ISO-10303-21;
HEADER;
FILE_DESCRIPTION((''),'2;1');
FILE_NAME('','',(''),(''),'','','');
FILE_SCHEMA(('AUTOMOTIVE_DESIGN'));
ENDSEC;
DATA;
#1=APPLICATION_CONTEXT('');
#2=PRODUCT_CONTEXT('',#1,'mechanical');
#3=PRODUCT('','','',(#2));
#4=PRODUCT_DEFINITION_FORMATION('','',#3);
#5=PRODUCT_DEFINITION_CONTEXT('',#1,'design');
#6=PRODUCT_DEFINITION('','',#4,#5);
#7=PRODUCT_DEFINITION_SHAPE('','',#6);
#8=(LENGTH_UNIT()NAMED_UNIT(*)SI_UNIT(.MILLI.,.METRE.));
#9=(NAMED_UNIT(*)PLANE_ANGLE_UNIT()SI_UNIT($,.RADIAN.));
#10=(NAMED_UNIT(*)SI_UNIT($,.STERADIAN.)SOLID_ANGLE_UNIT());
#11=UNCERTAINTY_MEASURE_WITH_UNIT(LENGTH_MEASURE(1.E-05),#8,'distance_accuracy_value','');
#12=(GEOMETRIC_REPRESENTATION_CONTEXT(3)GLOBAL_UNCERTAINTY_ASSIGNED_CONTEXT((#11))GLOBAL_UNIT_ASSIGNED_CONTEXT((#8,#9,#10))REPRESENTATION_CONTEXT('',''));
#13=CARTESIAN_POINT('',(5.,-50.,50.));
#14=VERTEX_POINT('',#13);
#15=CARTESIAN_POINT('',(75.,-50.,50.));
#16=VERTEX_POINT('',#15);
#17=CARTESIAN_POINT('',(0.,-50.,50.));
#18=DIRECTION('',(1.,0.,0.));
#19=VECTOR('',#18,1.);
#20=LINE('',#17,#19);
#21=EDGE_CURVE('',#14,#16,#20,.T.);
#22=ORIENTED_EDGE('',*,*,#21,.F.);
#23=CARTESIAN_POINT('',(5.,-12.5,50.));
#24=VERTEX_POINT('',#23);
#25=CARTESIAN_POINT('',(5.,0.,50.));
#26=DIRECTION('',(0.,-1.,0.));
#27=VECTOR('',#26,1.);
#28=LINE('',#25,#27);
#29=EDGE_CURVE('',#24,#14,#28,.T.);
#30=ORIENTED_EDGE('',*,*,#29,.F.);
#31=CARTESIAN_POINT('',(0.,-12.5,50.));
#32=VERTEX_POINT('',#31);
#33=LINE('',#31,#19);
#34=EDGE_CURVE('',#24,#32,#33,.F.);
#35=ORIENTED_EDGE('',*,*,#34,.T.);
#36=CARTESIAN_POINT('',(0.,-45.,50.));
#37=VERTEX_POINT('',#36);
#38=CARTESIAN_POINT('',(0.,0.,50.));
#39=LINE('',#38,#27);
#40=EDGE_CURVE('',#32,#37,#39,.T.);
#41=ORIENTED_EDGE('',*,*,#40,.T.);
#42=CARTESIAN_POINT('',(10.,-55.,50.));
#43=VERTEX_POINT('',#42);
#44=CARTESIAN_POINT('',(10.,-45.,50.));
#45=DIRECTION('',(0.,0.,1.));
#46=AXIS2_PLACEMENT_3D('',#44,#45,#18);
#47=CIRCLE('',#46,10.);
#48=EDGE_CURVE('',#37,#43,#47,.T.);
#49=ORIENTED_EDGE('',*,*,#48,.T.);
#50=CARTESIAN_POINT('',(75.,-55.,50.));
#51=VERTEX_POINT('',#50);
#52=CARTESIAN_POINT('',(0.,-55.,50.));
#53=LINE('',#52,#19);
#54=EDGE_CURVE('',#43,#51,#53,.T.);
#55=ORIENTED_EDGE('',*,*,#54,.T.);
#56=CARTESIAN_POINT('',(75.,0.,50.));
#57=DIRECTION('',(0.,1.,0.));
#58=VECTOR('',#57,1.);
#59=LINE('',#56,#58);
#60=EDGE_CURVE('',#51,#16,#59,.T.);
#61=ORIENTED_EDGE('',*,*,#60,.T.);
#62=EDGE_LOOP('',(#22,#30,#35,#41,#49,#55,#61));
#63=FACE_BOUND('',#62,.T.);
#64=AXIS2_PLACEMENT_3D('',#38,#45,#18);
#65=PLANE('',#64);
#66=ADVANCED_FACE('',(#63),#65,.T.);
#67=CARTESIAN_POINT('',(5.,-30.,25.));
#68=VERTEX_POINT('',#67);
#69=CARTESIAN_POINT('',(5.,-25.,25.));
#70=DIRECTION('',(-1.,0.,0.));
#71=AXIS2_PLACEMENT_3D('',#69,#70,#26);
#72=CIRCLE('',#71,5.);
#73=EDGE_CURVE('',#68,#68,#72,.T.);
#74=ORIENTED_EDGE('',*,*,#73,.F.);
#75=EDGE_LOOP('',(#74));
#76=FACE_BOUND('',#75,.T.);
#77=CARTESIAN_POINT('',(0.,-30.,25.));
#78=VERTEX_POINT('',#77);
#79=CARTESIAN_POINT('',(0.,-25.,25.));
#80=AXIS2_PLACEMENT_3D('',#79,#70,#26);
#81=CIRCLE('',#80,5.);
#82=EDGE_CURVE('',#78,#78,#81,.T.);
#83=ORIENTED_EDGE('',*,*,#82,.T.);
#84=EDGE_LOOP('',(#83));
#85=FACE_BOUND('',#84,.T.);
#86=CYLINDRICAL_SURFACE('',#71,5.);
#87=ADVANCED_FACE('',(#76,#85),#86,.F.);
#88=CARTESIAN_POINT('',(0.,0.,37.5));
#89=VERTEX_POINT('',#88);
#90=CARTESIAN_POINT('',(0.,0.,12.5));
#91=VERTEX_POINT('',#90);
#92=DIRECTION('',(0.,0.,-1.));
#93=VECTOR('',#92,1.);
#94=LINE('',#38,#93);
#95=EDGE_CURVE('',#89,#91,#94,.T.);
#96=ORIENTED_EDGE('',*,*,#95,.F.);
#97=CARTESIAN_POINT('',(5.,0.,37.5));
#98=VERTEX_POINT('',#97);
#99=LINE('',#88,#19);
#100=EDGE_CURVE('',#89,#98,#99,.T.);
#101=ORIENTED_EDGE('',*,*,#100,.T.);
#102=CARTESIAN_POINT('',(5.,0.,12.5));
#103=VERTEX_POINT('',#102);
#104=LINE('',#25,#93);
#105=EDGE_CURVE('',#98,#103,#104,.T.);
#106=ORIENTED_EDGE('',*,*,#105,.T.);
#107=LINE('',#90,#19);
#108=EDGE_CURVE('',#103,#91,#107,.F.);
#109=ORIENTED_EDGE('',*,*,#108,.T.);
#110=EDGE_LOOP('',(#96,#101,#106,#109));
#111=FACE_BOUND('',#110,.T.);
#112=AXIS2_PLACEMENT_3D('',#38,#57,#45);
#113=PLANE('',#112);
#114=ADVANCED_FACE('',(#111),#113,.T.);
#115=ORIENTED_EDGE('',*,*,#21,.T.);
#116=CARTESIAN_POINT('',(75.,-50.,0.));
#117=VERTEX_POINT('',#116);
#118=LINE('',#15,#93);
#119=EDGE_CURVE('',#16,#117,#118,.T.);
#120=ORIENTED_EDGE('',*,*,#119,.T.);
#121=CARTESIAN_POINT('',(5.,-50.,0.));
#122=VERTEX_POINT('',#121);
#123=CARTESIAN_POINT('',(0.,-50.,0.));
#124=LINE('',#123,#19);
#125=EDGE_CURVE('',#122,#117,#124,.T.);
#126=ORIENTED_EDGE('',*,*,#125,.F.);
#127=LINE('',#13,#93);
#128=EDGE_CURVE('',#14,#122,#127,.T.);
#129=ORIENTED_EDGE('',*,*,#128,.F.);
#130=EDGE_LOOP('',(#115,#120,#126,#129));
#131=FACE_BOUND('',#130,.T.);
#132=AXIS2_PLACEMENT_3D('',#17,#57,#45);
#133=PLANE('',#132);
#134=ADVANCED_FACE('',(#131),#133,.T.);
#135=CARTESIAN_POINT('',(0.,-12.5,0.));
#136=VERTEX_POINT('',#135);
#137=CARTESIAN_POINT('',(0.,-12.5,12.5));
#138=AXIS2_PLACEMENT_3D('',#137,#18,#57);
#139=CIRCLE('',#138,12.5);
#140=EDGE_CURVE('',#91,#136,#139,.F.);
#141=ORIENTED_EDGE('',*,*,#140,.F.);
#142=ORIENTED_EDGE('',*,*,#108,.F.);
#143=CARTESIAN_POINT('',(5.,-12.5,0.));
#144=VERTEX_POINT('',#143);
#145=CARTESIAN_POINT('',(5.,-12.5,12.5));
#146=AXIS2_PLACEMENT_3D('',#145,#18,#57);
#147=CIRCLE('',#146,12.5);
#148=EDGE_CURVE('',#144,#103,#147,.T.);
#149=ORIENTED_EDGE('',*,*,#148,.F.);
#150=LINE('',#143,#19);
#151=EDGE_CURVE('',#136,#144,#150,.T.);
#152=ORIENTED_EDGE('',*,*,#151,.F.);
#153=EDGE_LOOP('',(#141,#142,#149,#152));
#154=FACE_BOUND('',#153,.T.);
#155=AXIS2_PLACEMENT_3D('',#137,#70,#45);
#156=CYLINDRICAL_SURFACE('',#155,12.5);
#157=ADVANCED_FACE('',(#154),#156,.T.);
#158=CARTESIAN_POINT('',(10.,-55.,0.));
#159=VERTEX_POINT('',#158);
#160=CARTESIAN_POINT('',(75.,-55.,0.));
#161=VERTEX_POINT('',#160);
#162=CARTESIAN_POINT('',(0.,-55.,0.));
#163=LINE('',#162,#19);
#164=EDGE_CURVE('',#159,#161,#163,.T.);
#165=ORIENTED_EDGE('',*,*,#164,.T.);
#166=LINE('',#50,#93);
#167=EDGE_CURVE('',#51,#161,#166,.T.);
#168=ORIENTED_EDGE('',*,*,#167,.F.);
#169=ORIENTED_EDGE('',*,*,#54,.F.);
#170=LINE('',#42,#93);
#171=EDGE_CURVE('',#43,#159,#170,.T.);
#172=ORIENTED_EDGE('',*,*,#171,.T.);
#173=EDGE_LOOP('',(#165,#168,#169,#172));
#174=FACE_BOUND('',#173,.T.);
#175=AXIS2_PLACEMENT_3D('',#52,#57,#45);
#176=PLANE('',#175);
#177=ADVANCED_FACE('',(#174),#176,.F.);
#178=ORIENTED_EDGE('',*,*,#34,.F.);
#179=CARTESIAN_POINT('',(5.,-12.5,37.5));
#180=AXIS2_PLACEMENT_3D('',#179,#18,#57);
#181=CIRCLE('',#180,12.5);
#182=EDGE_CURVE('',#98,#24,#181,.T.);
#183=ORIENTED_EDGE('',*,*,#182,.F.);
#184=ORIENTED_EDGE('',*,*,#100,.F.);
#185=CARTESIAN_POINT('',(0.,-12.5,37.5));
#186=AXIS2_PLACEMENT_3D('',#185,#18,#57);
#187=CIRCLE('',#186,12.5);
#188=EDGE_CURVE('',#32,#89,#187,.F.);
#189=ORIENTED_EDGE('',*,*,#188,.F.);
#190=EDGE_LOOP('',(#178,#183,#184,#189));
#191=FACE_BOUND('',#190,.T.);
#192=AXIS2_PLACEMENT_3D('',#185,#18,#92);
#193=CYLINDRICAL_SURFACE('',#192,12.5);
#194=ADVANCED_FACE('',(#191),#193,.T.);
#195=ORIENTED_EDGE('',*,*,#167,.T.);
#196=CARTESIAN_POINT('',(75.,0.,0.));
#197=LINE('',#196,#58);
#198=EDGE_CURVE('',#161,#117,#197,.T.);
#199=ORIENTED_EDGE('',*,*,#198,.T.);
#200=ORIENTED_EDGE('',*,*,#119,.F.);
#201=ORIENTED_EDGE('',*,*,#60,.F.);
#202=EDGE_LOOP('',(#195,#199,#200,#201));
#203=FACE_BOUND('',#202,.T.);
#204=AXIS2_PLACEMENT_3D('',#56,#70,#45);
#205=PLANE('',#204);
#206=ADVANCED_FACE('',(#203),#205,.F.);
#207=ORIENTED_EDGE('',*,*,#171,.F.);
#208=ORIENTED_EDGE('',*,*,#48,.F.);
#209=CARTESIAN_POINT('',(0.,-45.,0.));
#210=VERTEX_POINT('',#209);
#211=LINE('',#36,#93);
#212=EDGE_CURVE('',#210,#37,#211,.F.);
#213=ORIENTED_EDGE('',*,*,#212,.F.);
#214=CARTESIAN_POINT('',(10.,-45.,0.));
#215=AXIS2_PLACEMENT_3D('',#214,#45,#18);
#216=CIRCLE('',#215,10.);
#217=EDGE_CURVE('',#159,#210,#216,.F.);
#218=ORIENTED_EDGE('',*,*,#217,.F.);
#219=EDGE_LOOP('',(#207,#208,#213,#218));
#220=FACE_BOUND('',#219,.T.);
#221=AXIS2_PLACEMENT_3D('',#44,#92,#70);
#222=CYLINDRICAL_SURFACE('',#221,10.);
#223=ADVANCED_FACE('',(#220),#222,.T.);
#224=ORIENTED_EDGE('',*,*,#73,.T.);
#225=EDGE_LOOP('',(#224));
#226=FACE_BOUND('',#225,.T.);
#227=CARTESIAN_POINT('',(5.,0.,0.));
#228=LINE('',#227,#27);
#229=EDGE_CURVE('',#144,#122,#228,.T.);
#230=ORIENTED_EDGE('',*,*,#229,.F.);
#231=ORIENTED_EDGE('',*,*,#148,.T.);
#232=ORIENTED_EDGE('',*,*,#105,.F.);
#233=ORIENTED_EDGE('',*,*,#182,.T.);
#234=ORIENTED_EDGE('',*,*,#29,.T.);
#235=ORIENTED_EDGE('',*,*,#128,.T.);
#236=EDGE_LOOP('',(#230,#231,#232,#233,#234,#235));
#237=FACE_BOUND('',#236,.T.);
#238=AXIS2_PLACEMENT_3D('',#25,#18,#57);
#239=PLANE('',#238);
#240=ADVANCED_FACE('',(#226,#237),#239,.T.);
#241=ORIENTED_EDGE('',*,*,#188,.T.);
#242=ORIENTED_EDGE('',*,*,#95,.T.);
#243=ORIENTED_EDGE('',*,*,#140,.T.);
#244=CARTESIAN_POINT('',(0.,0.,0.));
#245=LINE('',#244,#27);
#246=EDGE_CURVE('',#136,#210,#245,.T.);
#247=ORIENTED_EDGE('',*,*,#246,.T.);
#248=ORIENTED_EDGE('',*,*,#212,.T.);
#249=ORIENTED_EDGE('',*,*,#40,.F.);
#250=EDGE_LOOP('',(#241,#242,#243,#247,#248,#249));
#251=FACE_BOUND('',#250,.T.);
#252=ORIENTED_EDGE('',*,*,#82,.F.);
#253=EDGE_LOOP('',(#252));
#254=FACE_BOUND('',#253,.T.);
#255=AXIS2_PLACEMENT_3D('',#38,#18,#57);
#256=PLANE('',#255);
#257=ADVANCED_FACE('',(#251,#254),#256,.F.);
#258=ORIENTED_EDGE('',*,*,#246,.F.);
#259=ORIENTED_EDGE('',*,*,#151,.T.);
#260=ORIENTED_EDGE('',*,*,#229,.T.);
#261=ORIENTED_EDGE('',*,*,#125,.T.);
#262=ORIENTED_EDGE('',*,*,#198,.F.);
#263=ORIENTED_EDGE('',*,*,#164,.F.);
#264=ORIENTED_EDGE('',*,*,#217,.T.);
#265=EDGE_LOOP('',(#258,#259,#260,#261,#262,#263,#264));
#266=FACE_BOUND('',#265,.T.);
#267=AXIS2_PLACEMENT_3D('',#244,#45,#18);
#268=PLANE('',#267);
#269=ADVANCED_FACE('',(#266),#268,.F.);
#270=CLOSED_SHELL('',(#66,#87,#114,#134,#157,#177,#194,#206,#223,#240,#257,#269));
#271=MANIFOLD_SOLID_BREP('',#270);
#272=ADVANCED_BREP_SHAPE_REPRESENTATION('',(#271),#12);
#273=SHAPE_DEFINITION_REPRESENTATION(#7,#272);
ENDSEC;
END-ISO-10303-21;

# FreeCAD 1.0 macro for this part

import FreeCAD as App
import Part
import Sketcher
from FreeCAD import Vector


def edges_at(feature, points):
    """Names of the edges that pass closest to the given points."""
    edges = feature.Shape.Edges
    near = lambda p: min(range(len(edges)), key=lambda i: edges[i].distToShape(Part.Vertex(*p))[0])
    return sorted({f"Edge{near(p) + 1}" for p in points})


def add_polygon(sketch, points):
    """Adds a closed chain of lines whose ends are joined by coincident constraints."""
    first, n = sketch.GeometryCount, len(points)
    for a, b in zip(points, points[1:] + points[:1]):
        sketch.addGeometry(Part.LineSegment(App.Vector(*a, 0), App.Vector(*b, 0)), False)
    for i in range(n):
        sketch.addConstraint(Sketcher.Constraint("Coincident", first + i, 2, first + (i + 1) % n, 1))

doc = App.newDocument("Part")
body = doc.addObject("PartDesign::Body", "Body")

# Sketch on XY plane
sketch1 = body.newObject("Sketcher::SketchObject", "Sketch")
sketch1.AttachmentSupport = (doc.getObject("XY_Plane"), [""])
sketch1.MapMode = "FlatFace"
add_polygon(sketch1, [(0, 0), (0, -55), (75, -55), (75, -50), (5, -50), (5, 0)])  # lines 0-5
sketch1.addConstraint([
    Sketcher.Constraint("Vertical", 0),
    Sketcher.Constraint("Horizontal", 1),
    Sketcher.Constraint("Vertical", 2),
    Sketcher.Constraint("Horizontal", 3),
    Sketcher.Constraint("Vertical", 4),
    Sketcher.Constraint("Horizontal", 5),
    Sketcher.Constraint("Coincident", 5, 2, -1, 1),
    Sketcher.Constraint("Equal", 5, 2),
    Sketcher.Constraint("DistanceX", 1, 1, 1, 2, 75.0),
    Sketcher.Constraint("DistanceX", 3, 2, 3, 1, 70.0),
    Sketcher.Constraint("DistanceY", 0, 2, 0, 1, 55.0),
])
pad1 = body.newObject("PartDesign::Pad", "Pad")
pad1.Profile = sketch1
pad1.Length = 50

# Sketch on YZ plane
sketch2 = body.newObject("Sketcher::SketchObject", "Sketch001")
sketch2.AttachmentSupport = (doc.getObject("YZ_Plane"), [""])
sketch2.MapMode = "FlatFace"
sketch2.addGeometry(Part.Circle(Vector(-25, 25, 0), Vector(0, 0, 1), 5), False)
sketch2.addConstraint([
    Sketcher.Constraint("Diameter", 0, 10.0),
    Sketcher.Constraint("DistanceX", 0, 3, -1, 1, 25.0),
    Sketcher.Constraint("DistanceY", -1, 1, 0, 3, 25.0),
])
pocket1 = body.newObject("PartDesign::Pocket", "Pocket")
pocket1.Profile = sketch2
pocket1.Length = 5
pocket1.Reversed = True
doc.recompute()

fillet = body.newObject("PartDesign::Fillet", "Fillet")
fillet.Base = (pocket1, edges_at(pocket1, [(0, -55, 25)]))
fillet.Radius = 10
doc.recompute()

fillet2 = body.newObject("PartDesign::Fillet", "Fillet001")
fillet2.Base = (fillet, edges_at(fillet, [(2.5, 0, 50), (2.5, 0, 0)]))
fillet2.Radius = 12.5

doc.recompute()
